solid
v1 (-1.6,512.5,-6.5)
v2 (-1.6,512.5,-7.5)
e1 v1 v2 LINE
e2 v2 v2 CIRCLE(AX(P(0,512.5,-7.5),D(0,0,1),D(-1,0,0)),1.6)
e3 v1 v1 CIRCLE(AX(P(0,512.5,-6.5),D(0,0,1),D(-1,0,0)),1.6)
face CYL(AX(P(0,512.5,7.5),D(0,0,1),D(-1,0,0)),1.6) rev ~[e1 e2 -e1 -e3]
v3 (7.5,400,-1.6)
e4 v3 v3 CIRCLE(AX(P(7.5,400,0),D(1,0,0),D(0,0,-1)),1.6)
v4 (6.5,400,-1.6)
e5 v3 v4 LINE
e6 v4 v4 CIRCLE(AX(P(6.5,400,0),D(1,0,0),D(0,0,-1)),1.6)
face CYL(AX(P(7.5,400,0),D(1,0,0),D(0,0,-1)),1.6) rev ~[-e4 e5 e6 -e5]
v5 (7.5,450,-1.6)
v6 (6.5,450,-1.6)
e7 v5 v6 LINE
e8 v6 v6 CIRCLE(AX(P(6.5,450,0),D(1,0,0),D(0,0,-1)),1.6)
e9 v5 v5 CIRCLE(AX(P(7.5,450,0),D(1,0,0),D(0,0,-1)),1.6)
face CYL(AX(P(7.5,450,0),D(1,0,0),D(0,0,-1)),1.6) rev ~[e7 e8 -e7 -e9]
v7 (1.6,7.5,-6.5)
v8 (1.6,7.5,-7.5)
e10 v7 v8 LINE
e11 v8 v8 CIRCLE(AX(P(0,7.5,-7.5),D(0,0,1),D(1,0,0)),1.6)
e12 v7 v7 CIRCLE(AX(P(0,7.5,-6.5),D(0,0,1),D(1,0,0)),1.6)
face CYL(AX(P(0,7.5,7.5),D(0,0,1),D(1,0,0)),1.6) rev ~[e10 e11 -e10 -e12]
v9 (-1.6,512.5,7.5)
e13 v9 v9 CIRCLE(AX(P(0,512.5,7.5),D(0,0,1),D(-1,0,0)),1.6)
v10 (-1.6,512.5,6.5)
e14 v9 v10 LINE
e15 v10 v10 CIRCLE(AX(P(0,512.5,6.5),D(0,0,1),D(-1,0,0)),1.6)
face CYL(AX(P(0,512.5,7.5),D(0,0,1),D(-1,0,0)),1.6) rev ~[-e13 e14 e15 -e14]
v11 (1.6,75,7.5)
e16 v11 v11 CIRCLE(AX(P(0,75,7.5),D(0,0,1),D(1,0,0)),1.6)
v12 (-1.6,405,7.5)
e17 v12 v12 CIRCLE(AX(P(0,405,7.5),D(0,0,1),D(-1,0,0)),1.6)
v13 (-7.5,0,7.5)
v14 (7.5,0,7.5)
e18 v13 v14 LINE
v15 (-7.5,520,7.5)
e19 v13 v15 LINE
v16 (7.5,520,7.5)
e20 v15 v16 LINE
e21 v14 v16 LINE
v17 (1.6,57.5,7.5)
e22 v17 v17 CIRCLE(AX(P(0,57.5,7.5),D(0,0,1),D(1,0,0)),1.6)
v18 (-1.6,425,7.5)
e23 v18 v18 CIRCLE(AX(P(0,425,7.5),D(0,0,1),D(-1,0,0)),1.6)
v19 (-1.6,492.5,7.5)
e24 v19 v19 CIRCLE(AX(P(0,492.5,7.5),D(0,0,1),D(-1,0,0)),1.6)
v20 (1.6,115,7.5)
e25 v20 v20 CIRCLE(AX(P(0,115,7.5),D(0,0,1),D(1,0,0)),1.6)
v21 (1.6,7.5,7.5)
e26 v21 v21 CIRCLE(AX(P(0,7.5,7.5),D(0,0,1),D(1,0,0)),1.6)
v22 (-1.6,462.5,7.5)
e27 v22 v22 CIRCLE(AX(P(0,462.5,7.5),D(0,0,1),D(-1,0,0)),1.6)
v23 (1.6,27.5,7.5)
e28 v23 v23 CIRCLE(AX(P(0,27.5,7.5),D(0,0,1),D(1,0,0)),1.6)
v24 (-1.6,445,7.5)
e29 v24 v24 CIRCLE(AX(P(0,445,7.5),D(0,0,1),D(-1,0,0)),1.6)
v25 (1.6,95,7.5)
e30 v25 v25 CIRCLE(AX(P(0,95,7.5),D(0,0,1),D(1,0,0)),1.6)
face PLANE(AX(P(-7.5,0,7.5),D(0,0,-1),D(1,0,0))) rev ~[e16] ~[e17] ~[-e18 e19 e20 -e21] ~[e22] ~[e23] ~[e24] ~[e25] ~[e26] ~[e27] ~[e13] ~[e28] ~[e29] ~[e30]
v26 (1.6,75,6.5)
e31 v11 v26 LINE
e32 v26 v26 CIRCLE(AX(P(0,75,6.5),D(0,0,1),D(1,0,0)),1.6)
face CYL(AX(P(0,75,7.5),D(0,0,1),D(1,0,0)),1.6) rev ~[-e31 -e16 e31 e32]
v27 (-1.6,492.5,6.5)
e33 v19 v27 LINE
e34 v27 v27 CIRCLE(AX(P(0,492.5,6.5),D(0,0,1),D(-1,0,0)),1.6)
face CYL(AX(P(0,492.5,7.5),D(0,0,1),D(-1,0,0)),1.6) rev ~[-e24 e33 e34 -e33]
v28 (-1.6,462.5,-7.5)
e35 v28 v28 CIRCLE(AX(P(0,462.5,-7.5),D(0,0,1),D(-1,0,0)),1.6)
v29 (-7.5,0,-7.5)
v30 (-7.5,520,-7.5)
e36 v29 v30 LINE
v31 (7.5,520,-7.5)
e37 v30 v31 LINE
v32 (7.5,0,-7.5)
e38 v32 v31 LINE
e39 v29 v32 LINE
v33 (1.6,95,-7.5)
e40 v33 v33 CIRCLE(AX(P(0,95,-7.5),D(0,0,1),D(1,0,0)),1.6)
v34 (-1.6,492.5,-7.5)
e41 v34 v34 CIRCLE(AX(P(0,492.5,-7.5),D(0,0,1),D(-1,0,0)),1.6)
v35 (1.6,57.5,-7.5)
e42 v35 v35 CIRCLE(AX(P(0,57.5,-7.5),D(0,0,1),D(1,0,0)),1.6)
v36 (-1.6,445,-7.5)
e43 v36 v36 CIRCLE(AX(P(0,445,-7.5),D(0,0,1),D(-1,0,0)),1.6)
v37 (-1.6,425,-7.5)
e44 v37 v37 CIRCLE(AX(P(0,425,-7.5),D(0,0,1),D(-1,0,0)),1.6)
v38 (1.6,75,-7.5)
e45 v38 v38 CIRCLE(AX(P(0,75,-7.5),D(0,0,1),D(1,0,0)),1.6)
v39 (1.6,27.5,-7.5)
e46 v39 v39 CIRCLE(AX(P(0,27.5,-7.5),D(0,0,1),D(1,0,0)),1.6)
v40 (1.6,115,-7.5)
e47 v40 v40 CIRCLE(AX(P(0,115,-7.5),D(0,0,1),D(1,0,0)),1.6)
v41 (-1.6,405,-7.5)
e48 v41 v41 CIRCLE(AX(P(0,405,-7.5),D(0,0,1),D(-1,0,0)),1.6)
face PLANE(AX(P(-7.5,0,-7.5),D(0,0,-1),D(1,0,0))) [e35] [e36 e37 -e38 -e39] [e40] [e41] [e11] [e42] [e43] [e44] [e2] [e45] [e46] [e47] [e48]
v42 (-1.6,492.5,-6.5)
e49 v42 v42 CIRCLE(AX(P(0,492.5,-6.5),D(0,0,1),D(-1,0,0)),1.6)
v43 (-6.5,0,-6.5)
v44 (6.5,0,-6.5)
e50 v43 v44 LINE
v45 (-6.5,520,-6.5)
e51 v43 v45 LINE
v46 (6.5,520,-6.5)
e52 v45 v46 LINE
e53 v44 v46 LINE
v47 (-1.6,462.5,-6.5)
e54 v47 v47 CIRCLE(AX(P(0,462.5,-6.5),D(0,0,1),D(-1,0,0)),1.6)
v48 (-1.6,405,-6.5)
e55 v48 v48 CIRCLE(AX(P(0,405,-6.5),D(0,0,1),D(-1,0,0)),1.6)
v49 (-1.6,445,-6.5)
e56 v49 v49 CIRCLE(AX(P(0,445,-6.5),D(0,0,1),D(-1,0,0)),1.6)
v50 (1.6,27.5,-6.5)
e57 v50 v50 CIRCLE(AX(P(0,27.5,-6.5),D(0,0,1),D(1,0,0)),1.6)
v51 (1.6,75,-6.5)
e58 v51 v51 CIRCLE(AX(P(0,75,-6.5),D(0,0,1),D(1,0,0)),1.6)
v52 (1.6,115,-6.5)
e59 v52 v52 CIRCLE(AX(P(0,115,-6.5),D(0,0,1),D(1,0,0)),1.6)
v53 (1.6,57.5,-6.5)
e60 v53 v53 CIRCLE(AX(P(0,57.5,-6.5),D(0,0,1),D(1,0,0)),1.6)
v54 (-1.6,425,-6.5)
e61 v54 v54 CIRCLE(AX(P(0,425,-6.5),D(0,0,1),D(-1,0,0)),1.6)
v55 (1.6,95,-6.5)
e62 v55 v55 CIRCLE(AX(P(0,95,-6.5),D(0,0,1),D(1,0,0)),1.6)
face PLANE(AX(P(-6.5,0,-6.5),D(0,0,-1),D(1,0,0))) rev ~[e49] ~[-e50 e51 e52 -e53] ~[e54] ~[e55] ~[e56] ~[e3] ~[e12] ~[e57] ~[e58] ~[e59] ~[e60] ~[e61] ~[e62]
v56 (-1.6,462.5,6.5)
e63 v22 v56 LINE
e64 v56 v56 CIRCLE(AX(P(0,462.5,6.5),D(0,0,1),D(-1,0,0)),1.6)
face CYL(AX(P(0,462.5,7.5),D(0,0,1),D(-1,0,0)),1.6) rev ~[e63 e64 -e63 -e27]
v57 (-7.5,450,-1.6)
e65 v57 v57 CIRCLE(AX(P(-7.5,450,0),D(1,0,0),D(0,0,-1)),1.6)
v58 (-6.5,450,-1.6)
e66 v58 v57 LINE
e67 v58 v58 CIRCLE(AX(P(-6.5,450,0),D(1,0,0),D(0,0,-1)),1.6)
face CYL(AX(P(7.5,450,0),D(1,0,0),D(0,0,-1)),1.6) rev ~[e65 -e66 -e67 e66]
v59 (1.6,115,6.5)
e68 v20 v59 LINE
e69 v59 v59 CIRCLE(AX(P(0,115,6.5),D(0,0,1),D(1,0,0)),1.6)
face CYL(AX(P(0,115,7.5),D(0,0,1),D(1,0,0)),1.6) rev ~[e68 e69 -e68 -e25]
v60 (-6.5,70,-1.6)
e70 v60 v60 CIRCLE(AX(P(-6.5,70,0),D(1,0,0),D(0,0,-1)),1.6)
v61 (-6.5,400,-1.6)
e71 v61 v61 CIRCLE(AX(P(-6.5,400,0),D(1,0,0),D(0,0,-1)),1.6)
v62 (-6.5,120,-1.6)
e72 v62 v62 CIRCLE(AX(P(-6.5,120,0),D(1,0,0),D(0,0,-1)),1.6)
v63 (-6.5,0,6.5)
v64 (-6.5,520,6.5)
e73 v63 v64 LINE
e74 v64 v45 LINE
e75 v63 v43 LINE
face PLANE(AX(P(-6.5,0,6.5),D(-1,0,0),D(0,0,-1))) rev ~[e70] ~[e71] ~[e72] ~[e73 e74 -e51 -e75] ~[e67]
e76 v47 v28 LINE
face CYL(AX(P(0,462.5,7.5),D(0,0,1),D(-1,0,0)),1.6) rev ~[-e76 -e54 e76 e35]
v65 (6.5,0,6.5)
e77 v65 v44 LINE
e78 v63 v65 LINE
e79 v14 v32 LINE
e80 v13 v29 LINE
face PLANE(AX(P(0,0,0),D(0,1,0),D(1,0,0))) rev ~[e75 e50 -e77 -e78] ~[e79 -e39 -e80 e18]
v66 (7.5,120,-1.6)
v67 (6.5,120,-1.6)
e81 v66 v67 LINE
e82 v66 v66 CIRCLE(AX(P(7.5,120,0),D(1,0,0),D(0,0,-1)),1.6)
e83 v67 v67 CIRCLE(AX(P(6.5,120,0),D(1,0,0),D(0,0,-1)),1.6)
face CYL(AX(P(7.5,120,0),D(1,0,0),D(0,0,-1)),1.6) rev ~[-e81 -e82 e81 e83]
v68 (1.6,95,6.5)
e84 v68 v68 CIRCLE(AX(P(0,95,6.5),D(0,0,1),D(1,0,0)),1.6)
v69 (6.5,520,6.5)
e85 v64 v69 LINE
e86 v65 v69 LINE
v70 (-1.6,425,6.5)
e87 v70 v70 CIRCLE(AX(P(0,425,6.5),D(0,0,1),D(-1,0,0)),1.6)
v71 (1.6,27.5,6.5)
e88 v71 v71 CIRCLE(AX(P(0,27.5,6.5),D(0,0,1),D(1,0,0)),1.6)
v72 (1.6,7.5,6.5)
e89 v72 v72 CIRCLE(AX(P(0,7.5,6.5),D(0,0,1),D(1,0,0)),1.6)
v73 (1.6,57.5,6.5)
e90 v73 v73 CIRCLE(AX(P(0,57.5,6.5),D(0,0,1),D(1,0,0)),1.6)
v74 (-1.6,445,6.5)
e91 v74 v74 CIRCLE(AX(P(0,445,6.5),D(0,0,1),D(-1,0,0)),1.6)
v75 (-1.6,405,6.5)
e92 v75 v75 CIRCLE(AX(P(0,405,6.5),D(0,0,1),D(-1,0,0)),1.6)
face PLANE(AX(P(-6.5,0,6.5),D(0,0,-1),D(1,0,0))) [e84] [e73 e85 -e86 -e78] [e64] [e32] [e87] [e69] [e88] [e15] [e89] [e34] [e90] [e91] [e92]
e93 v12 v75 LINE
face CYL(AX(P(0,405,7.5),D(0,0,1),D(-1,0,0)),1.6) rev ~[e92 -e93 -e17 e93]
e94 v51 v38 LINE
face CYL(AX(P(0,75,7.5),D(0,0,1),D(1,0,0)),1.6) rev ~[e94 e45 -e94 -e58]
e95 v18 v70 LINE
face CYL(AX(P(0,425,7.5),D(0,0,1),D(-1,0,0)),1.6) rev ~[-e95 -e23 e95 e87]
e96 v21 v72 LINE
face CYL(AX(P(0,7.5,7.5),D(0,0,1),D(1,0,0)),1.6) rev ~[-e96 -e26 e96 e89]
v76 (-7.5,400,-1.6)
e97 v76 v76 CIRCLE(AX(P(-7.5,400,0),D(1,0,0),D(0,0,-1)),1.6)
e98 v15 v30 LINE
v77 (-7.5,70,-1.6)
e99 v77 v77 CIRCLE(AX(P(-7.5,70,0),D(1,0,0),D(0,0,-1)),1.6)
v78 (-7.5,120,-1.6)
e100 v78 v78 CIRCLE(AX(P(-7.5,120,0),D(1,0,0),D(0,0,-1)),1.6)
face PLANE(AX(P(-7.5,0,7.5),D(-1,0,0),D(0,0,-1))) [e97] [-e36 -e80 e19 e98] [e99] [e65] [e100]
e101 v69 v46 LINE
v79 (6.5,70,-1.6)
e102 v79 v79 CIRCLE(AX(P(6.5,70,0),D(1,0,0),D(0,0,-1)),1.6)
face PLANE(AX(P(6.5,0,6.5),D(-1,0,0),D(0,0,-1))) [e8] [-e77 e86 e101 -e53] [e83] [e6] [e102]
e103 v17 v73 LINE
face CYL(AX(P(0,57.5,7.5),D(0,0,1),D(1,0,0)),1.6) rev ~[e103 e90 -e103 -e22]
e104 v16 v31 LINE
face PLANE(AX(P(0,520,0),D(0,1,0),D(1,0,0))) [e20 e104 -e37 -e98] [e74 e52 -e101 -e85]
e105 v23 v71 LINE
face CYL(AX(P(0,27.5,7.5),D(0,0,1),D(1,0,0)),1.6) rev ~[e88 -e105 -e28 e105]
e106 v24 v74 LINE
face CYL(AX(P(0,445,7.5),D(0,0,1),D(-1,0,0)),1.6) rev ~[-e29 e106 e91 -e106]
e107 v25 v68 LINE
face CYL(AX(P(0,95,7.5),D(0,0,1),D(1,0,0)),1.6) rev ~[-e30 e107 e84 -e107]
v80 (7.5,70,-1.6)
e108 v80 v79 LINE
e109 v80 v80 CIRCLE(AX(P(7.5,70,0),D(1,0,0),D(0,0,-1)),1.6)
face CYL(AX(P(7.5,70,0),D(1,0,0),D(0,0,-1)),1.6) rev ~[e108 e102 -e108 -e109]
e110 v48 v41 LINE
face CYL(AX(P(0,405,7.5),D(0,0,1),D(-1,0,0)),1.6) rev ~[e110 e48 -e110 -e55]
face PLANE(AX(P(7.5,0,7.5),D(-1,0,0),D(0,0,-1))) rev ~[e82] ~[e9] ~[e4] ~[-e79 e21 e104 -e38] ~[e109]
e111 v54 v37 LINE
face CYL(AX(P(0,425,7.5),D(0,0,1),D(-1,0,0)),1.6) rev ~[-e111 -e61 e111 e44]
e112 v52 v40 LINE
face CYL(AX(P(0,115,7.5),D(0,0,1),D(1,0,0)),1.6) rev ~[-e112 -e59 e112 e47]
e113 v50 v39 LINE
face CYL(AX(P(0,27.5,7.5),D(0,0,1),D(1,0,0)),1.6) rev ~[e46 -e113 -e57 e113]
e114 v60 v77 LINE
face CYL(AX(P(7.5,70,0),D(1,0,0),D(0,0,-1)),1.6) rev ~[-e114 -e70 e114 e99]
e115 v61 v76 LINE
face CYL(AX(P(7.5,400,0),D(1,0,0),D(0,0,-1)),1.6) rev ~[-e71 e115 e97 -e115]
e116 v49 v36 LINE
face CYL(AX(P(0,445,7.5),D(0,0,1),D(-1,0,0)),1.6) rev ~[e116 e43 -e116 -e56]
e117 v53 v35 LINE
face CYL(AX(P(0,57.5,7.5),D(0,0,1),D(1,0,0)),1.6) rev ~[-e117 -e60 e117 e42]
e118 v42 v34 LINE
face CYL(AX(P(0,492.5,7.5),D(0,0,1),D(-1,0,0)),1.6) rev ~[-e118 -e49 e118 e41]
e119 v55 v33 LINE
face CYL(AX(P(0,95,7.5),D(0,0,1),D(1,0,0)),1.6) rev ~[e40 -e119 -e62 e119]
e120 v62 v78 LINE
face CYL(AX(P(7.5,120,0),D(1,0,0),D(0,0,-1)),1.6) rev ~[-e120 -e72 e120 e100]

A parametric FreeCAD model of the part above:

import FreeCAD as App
import Part
import Sketcher


def add_polygon(sketch, points):
    """Adds a closed chain of lines whose ends are joined by coincident constraints."""
    first, n = sketch.GeometryCount, len(points)
    for a, b in zip(points, points[1:] + points[:1]):
        sketch.addGeometry(Part.LineSegment(App.Vector(*a, 0), App.Vector(*b, 0)), False)
    for i in range(n):
        sketch.addConstraint(Sketcher.Constraint("Coincident", first + i, 2, first + (i + 1) % n, 1))

doc = App.newDocument("Part")
params = doc.addObject("Spreadsheet::Sheet", "Params")
for row, (alias, value) in enumerate([
    ("sketch1_width", "15 mm"),
    ("sketch1_width2", "13 mm"),
    ("pad1_length", "520 mm"),
    ("sketch2_diameter", "3.2 mm"),
    ("sketch3_diameter", "3.2 mm"),
], start=1):
    params.set(f"A{row}", alias)
    params.set(f"B{row}", "=" + value)
    params.setAlias(f"B{row}", alias)

body = doc.addObject("PartDesign::Body", "Body")

# Sketch on XZ plane
sketch1 = doc.addObject("Sketcher::SketchObject", "Sketch")
body.addObject(sketch1)
sketch1.AttachmentSupport = (doc.XZ_Plane, [""])
sketch1.MapMode = "FlatFace"
add_polygon(sketch1, [(-8, -8), (-8, 8), (8, 8), (8, -8)])  # lines 0-3
add_polygon(sketch1, [(6, 6), (-6, 6), (-6, -6), (6, -6)])  # lines 4-7
sketch1.addConstraint([
    Sketcher.Constraint("Vertical", 0),
    Sketcher.Constraint("Horizontal", 1),
    Sketcher.Constraint("Vertical", 2),
    Sketcher.Constraint("Horizontal", 3),
    Sketcher.Constraint("Horizontal", 4),
    Sketcher.Constraint("Vertical", 5),
    Sketcher.Constraint("Horizontal", 6),
    Sketcher.Constraint("Vertical", 7),
    Sketcher.Constraint("Symmetric", 0, 2, 2, 2, -1, 1),
    Sketcher.Constraint("Symmetric", 4, 2, 6, 2, -1, 1),
    Sketcher.Constraint("Equal", 3, 0),
    Sketcher.Constraint("Equal", 6, 5),
    Sketcher.Constraint("DistanceX", 1, 1, 1, 2, 15.0),
    Sketcher.Constraint("DistanceX", 4, 2, 4, 1, 13.0),
])
sketch1.setExpression("Constraints[20]", "Params.sketch1_width")
sketch1.setExpression("Constraints[21]", "Params.sketch1_width2")
pad1 = doc.addObject("PartDesign::Pad", "Pad")
body.addObject(pad1)
pad1.Profile = sketch1
pad1.setExpression("Length", "Params.pad1_length")
pad1.Reversed = True

# Sketch on XY plane
sketch2 = doc.addObject("Sketcher::SketchObject", "Sketch001")
body.addObject(sketch2)
sketch2.AttachmentSupport = (doc.XY_Plane, [""])
sketch2.MapMode = "FlatFace"
sketch2.AttachmentOffset = App.Placement(App.Vector(0, 0, 7.5), App.Rotation())
sketch2.addGeometry([
    Part.Circle(App.Vector(0, 7.5, 0), App.Vector(0, 0, 1), 1.6),  # 0
    Part.Circle(App.Vector(0, 27.5, 0), App.Vector(0, 0, 1), 1.6),  # 1
    Part.Circle(App.Vector(0, 57.5, 0), App.Vector(0, 0, 1), 1.6),  # 2
    Part.Circle(App.Vector(0, 75, 0), App.Vector(0, 0, 1), 1.6),  # 3
    Part.Circle(App.Vector(0, 95, 0), App.Vector(0, 0, 1), 1.6),  # 4
    Part.Circle(App.Vector(0, 115, 0), App.Vector(0, 0, 1), 1.6),  # 5
    Part.Circle(App.Vector(0, 405, 0), App.Vector(0, 0, 1), 1.6),  # 6
    Part.Circle(App.Vector(0, 425, 0), App.Vector(0, 0, 1), 1.6),  # 7
    Part.Circle(App.Vector(0, 445, 0), App.Vector(0, 0, 1), 1.6),  # 8
    Part.Circle(App.Vector(0, 462.5, 0), App.Vector(0, 0, 1), 1.6),  # 9
    Part.Circle(App.Vector(0, 492.5, 0), App.Vector(0, 0, 1), 1.6),  # 10
    Part.Circle(App.Vector(0, 512.5, 0), App.Vector(0, 0, 1), 1.6),  # 11
], False)
sketch2.addConstraint([
    Sketcher.Constraint("Equal", 0, 1),
    Sketcher.Constraint("Equal", 1, 2),
    Sketcher.Constraint("Equal", 2, 3),
    Sketcher.Constraint("Equal", 3, 4),
    Sketcher.Constraint("Equal", 4, 5),
    Sketcher.Constraint("Equal", 5, 6),
    Sketcher.Constraint("Equal", 6, 7),
    Sketcher.Constraint("Equal", 7, 8),
    Sketcher.Constraint("Equal", 8, 9),
    Sketcher.Constraint("Equal", 9, 10),
    Sketcher.Constraint("Equal", 10, 11),
    Sketcher.Constraint("PointOnObject", 0, 3, -2),
    Sketcher.Constraint("PointOnObject", 1, 3, -2),
    Sketcher.Constraint("PointOnObject", 2, 3, -2),
    Sketcher.Constraint("PointOnObject", 3, 3, -2),
    Sketcher.Constraint("PointOnObject", 4, 3, -2),
    Sketcher.Constraint("PointOnObject", 5, 3, -2),
    Sketcher.Constraint("PointOnObject", 6, 3, -2),
    Sketcher.Constraint("PointOnObject", 7, 3, -2),
    Sketcher.Constraint("PointOnObject", 8, 3, -2),
    Sketcher.Constraint("PointOnObject", 9, 3, -2),
    Sketcher.Constraint("PointOnObject", 10, 3, -2),
    Sketcher.Constraint("PointOnObject", 11, 3, -2),
    Sketcher.Constraint("Diameter", 0, 3.2),
    Sketcher.Constraint("DistanceY", -1, 1, 3, 3, 75.0),
    Sketcher.Constraint("DistanceY", -1, 1, 4, 3, 95.0),
    Sketcher.Constraint("DistanceY", -1, 1, 5, 3, 115.0),
    Sketcher.Constraint("DistanceY", -1, 1, 6, 3, 405.0),
    Sketcher.Constraint("DistanceY", -1, 1, 7, 3, 425.0),
    Sketcher.Constraint("DistanceY", -1, 1, 8, 3, 445.0),
    Sketcher.Constraint("DistanceY", 0, 3, 1, 3, 20.0),
    Sketcher.Constraint("DistanceY", 1, 3, 2, 3, 30.0),
    Sketcher.Constraint("DistanceY", 9, 3, 10, 3, 30.0),
    Sketcher.Constraint("DistanceY", 10, 3, 11, 3, 20.0),
    Sketcher.Constraint("DistanceY", -1, 1, 0, 3, 7.5),
    Sketcher.Constraint("DistanceY", -1, 1, 9, 3, 462.5),
])
sketch2.setExpression("Constraints[23]", "Params.sketch2_diameter")
pocket1 = doc.addObject("PartDesign::Pocket", "Pocket")
body.addObject(pocket1)
pocket1.Profile = sketch2
pocket1.Type = "ThroughAll"

# Sketch on YZ plane
sketch3 = doc.addObject("Sketcher::SketchObject", "Sketch002")
body.addObject(sketch3)
sketch3.AttachmentSupport = (doc.YZ_Plane, [""])
sketch3.MapMode = "FlatFace"
sketch3.AttachmentOffset = App.Placement(App.Vector(0, 0, 7.5), App.Rotation())
sketch3.addGeometry([
    Part.Circle(App.Vector(70, 0, 0), App.Vector(0, 0, 1), 1.6),
    Part.Circle(App.Vector(120, 0, 0), App.Vector(0, 0, 1), 1.6),
    Part.Circle(App.Vector(400, 0, 0), App.Vector(0, 0, 1), 1.6),
    Part.Circle(App.Vector(450, 0, 0), App.Vector(0, 0, 1), 1.6),
], False)
sketch3.addConstraint([
    Sketcher.Constraint("Equal", 0, 1),
    Sketcher.Constraint("Equal", 1, 2),
    Sketcher.Constraint("Equal", 2, 3),
    Sketcher.Constraint("PointOnObject", 0, 3, -1),
    Sketcher.Constraint("PointOnObject", 1, 3, -1),
    Sketcher.Constraint("PointOnObject", 2, 3, -1),
    Sketcher.Constraint("PointOnObject", 3, 3, -1),
    Sketcher.Constraint("Diameter", 0, 3.2),
    Sketcher.Constraint("DistanceX", -1, 1, 0, 3, 70.0),
    Sketcher.Constraint("DistanceX", -1, 1, 1, 3, 120.0),
    Sketcher.Constraint("DistanceX", -1, 1, 2, 3, 400.0),
    Sketcher.Constraint("DistanceX", -1, 1, 3, 3, 450.0),
])
sketch3.setExpression("Constraints[7]", "Params.sketch3_diameter")
pocket2 = doc.addObject("PartDesign::Pocket", "Pocket001")
body.addObject(pocket2)
pocket2.Profile = sketch3
pocket2.Type = "ThroughAll"

doc.recompute()
